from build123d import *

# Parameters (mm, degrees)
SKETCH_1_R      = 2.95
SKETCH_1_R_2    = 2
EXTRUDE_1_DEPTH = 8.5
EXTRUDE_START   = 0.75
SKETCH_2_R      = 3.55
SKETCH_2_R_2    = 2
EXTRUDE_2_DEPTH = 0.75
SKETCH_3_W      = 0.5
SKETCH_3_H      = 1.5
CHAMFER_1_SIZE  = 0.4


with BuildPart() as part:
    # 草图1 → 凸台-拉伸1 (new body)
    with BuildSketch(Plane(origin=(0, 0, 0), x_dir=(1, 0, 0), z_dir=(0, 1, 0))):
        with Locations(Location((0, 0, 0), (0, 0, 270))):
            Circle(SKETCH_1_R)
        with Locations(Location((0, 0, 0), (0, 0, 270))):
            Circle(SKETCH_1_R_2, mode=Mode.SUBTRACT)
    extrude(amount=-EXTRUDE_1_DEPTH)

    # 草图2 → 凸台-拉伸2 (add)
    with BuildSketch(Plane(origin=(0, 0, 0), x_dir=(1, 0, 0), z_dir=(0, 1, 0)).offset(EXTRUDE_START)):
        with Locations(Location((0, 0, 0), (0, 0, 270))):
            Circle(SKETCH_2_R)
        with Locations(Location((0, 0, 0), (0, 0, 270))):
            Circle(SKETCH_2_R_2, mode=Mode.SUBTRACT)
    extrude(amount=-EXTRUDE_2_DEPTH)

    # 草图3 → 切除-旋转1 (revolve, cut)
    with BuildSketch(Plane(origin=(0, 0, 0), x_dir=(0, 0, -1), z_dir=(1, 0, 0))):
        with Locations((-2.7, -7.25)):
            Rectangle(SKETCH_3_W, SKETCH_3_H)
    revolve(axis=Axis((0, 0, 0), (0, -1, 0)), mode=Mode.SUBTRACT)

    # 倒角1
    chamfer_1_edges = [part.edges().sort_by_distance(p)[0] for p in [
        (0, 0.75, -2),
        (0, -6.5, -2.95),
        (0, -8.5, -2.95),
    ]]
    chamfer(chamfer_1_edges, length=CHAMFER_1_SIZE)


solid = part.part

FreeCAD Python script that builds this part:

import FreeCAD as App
import Part
import Sketcher

V = App.Vector
Q = App.Units.Quantity


def edges_at(feature, points):
    """Names of the edges that pass closest to the given points."""
    edges = feature.Shape.Edges
    near = lambda p: min(range(len(edges)), key=lambda i: edges[i].distToShape(Part.Vertex(*p))[0])
    return sorted({f"Edge{near(p) + 1}" for p in points})

doc = App.newDocument("Part")
body = doc.addObject("PartDesign::Body", "Body")

# Sketch on XZ plane
sketch1 = body.newObject("Sketcher::SketchObject", "Sketch")
sketch1.AttachmentSupport = (doc.getObject("XZ_Plane"), [""])
sketch1.MapMode = "FlatFace"
sketch1.addGeometry([
    Part.Circle(V(0, 0, 0), V(0, 0, 1), 3),
    Part.Circle(V(0, 0, 0), V(0, 0, 1), 2),
], False)
sketch1.addConstraint([
    Sketcher.Constraint("Coincident", 0, 3, -1, 1),
    Sketcher.Constraint("Coincident", 1, 3, -1, 1),
    Sketcher.Constraint("Diameter", 1, Q("4 mm")),
    Sketcher.Constraint("Diameter", 0, Q("5.9 mm")),
])
pad1 = body.newObject("PartDesign::Pad", "Pad")
pad1.Profile = sketch1
pad1.Length = 8.5

# Sketch on XZ plane
sketch2 = body.newObject("Sketcher::SketchObject", "Sketch001")
sketch2.AttachmentSupport = (doc.getObject("XZ_Plane"), [""])
sketch2.MapMode = "FlatFace"
sketch2.AttachmentOffset = App.Placement(V(0, 0, -0.75), App.Rotation())
sketch2.addGeometry([
    Part.Circle(V(0, 0, 0), V(0, 0, 1), 3.5),
    Part.Circle(V(0, 0, 0), V(0, 0, 1), 2),
], False)
sketch2.addConstraint([
    Sketcher.Constraint("Coincident", 0, 3, -1, 1),
    Sketcher.Constraint("Coincident", 1, 3, -1, 1),
    Sketcher.Constraint("Diameter", 1, Q("4 mm")),
    Sketcher.Constraint("Diameter", 0, Q("7.1 mm")),
])
pad2 = body.newObject("PartDesign::Pad", "Pad001")
pad2.Profile = sketch2
pad2.Length = 0.75

# Sketch on YZ plane
sketch3 = body.newObject("Sketcher::SketchObject", "Sketch002")
sketch3.AttachmentSupport = (doc.getObject("YZ_Plane"), [""])
sketch3.MapMode = "FlatFace"
sketch3.addGeometry([
    Part.LineSegment(V(-6.5, 3, 0), V(-8, 3, 0)),
    Part.LineSegment(V(-8, 3, 0), V(-8, 2.5, 0)),
    Part.LineSegment(V(-8, 2.5, 0), V(-6.5, 2.5, 0)),
    Part.LineSegment(V(-6.5, 2.5, 0), V(-6.5, 3, 0)),
], False)
sketch3.addConstraint([
    Sketcher.Constraint("Coincident", 0, 2, 1, 1),
    Sketcher.Constraint("Coincident", 1, 2, 2, 1),
    Sketcher.Constraint("Coincident", 2, 2, 3, 1),
    Sketcher.Constraint("Coincident", 3, 2, 0, 1),
    Sketcher.Constraint("Horizontal", 0),
    Sketcher.Constraint("Vertical", 1),
    Sketcher.Constraint("Horizontal", 2),
    Sketcher.Constraint("Vertical", 3),
    Sketcher.Constraint("DistanceX", 0, 2, 0, 1, Q("1.5 mm")),
    Sketcher.Constraint("DistanceY", 1, 2, 1, 1, Q("0.5 mm")),
    Sketcher.Constraint("DistanceX", 0, 2, -1, 1, Q("8 mm")),
    Sketcher.Constraint("DistanceY", -1, 1, 0, 2, Q("2.95 mm")),
])
groove = body.newObject("PartDesign::Groove", "Groove")
groove.Profile = sketch3
groove.ReferenceAxis = (sketch3, ["H_Axis"])
groove.Angle = 360
doc.recompute()

chamfer = body.newObject("PartDesign::Chamfer", "Chamfer")
chamfer.Base = (groove, edges_at(groove, [(0, 0.75, -2), (0, -6.5, -2.95), (0, -8.5, -2.95)]))
chamfer.Size = 0.4

doc.recompute()
